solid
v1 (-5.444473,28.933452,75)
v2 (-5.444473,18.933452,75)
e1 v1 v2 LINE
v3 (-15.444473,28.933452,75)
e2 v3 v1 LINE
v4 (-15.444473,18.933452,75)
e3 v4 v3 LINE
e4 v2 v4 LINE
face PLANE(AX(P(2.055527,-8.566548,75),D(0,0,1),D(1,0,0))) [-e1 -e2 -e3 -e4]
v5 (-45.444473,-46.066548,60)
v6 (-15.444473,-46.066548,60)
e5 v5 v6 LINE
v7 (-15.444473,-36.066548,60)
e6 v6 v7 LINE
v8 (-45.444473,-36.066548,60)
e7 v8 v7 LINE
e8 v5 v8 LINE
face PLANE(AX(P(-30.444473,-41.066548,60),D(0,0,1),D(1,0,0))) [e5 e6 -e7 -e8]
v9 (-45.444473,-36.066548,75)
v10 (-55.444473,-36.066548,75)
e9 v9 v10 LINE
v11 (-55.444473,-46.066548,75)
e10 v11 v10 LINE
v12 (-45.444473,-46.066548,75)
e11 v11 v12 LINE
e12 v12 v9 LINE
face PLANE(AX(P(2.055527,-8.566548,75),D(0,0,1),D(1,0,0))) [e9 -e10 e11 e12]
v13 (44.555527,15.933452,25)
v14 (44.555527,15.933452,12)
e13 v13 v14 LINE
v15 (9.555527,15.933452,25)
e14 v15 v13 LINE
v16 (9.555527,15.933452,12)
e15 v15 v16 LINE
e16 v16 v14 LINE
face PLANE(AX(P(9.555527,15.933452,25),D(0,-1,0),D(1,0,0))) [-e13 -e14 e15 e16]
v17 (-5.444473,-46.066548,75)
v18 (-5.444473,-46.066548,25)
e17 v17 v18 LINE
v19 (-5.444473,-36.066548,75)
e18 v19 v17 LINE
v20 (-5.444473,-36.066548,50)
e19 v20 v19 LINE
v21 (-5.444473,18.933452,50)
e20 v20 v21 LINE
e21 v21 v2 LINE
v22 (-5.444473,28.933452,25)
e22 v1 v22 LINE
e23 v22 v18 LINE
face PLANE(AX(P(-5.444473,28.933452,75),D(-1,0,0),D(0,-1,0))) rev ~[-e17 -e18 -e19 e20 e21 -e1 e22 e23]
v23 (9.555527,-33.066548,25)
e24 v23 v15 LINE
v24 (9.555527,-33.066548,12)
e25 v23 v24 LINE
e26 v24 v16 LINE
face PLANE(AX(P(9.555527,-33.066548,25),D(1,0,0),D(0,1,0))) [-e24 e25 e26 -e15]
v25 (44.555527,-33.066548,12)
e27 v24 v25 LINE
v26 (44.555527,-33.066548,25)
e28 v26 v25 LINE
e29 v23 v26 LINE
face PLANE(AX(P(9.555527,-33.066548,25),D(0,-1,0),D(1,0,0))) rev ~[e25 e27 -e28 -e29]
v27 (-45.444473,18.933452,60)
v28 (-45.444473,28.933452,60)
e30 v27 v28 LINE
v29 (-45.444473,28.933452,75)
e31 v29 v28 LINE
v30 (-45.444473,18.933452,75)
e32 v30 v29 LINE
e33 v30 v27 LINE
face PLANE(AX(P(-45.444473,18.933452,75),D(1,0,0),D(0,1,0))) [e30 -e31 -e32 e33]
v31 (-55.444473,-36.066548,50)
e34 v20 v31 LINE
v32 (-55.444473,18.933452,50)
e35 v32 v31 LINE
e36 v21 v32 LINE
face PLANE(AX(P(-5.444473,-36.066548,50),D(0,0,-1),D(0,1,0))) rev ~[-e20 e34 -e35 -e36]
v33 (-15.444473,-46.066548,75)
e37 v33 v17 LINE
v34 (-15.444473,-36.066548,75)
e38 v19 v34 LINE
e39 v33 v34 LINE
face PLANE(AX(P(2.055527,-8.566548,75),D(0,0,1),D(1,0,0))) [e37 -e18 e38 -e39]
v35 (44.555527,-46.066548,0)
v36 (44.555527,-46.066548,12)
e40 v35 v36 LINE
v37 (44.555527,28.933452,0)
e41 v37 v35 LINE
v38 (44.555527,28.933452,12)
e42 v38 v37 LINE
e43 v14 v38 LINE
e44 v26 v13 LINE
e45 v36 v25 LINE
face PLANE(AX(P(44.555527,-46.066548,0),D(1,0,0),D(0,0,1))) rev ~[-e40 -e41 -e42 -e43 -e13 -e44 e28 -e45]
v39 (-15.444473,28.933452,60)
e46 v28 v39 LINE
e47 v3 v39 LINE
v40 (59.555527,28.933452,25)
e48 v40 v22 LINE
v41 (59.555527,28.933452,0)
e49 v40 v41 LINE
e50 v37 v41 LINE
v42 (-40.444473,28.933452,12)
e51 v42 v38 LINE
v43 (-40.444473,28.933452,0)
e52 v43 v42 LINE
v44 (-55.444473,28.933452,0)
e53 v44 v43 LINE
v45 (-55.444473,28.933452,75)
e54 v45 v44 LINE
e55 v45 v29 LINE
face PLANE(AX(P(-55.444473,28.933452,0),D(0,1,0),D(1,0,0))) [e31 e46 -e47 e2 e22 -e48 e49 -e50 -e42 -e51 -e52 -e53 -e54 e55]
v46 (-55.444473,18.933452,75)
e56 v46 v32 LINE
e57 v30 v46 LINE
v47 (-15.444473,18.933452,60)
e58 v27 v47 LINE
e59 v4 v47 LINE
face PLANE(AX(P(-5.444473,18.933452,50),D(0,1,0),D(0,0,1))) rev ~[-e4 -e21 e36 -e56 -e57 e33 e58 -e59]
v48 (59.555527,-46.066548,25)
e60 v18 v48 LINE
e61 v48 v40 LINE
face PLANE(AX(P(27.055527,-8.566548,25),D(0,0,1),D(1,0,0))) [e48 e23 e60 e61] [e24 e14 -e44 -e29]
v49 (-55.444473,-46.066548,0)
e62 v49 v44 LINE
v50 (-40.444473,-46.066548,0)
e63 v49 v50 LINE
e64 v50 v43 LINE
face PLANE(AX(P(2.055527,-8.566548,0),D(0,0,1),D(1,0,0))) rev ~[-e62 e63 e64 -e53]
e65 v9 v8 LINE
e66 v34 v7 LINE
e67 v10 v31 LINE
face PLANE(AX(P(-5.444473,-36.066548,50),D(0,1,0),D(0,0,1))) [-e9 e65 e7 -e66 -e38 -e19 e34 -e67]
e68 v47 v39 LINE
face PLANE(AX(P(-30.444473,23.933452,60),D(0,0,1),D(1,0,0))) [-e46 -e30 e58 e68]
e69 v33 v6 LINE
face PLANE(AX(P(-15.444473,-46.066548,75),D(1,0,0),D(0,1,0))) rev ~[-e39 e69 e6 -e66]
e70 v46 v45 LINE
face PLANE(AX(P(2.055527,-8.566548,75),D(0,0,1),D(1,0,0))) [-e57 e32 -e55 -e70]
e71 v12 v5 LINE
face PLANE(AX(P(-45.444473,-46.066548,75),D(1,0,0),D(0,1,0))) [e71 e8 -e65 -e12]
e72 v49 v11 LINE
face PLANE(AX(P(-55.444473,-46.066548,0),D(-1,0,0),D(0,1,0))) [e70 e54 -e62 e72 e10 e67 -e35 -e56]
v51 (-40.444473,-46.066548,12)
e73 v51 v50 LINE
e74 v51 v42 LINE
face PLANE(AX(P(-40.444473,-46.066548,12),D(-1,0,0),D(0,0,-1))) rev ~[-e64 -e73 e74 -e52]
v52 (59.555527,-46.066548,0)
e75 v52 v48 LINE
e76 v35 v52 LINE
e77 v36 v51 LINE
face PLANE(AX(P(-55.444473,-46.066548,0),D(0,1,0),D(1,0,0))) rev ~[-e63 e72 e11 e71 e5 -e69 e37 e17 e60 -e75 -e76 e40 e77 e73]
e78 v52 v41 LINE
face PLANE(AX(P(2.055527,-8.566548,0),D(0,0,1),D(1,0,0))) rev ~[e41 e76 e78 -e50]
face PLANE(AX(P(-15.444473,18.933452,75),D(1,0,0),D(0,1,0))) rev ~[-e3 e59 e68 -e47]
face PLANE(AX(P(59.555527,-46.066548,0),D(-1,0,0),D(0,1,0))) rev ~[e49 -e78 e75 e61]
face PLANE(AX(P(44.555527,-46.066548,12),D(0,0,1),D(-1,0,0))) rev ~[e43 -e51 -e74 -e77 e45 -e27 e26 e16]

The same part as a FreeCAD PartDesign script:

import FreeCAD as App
import Part
import Sketcher

V = App.Vector


def add_polygon(sketch, points):
    """Adds a closed chain of lines whose ends are joined by coincident constraints."""
    first, n = sketch.GeometryCount, len(points)
    for a, b in zip(points, points[1:] + points[:1]):
        sketch.addGeometry(Part.LineSegment(App.Vector(*a, 0), App.Vector(*b, 0)), False)
    for i in range(n):
        sketch.addConstraint(Sketcher.Constraint("Coincident", first + i, 2, first + (i + 1) % n, 1))

doc = App.newDocument("Part")
body = doc.addObject("PartDesign::Body", "Body")

sketch1 = doc.addObject("Sketcher::SketchObject", "Sketch")
body.addObject(sketch1)
sketch1.AttachmentSupport = (doc.XY_Plane, [""])
sketch1.MapMode = "FlatFace"
add_polygon(sketch1, [(-55, 29), (-55, -46), (60, -46), (60, 29)])
sketch1.addConstraint(Sketcher.Constraint("Vertical", 0))
sketch1.addConstraint(Sketcher.Constraint("Horizontal", 1))
sketch1.addConstraint(Sketcher.Constraint("Vertical", 2))
sketch1.addConstraint(Sketcher.Constraint("Horizontal", 3))
sketch1.addConstraint(Sketcher.Constraint("DistanceX", 1, 1, 1, 2, 115.0))
sketch1.addConstraint(Sketcher.Constraint("DistanceY", 0, 2, 0, 1, 75.0))
sketch1.addConstraint(Sketcher.Constraint("DistanceX", 0, 2, -1, 1, 55.444473))
sketch1.addConstraint(Sketcher.Constraint("DistanceY", 0, 2, -1, 1, 46.066548))
pad1 = doc.addObject("PartDesign::Pad", "Pad")
body.addObject(pad1)
pad1.Profile = sketch1
pad1.Length = 25

sketch2 = doc.addObject("Sketcher::SketchObject", "Sketch001")
body.addObject(sketch2)
sketch2.AttachmentSupport = (doc.XY_Plane, [""])
sketch2.MapMode = "FlatFace"
add_polygon(sketch2, [(-55, 29), (-55, -46), (60, -46), (60, 29)])
sketch2.addConstraint(Sketcher.Constraint("Vertical", 0))
sketch2.addConstraint(Sketcher.Constraint("Horizontal", 1))
sketch2.addConstraint(Sketcher.Constraint("Vertical", 2))
sketch2.addConstraint(Sketcher.Constraint("Horizontal", 3))
sketch2.addConstraint(Sketcher.Constraint("DistanceX", 1, 1, 1, 2, 115.0))
sketch2.addConstraint(Sketcher.Constraint("DistanceY", 0, 2, 0, 1, 75.0))
sketch2.addConstraint(Sketcher.Constraint("DistanceX", 0, 2, -1, 1, 55.444473))
sketch2.addConstraint(Sketcher.Constraint("DistanceY", 0, 2, -1, 1, 46.066548))
pad2 = doc.addObject("PartDesign::Pad", "Pad001")
body.addObject(pad2)
pad2.Profile = sketch2
pad2.Length = 75

sketch3 = doc.addObject("Sketcher::SketchObject", "Sketch002")
body.addObject(sketch3)
sketch3.AttachmentSupport = (doc.XZ_Plane, [""])
sketch3.MapMode = "FlatFace"
sketch3.AttachmentOffset = App.Placement(V(0, 0, 46.066548), App.Rotation())
add_polygon(sketch3, [(-40, 12), (-40, 0), (45, 0), (45, 12)])
sketch3.addConstraint(Sketcher.Constraint("Vertical", 0))
sketch3.addConstraint(Sketcher.Constraint("Horizontal", 1))
sketch3.addConstraint(Sketcher.Constraint("Vertical", 2))
sketch3.addConstraint(Sketcher.Constraint("Horizontal", 3))
sketch3.addConstraint(Sketcher.Constraint("PointOnObject", 0, 2, -1))
sketch3.addConstraint(Sketcher.Constraint("DistanceX", 1, 1, 1, 2, 85.0))
sketch3.addConstraint(Sketcher.Constraint("DistanceY", 0, 2, 0, 1, 12.0))
sketch3.addConstraint(Sketcher.Constraint("DistanceX", 0, 2, -1, 1, 40.444473))
pocket1 = doc.addObject("PartDesign::Pocket", "Pocket")
body.addObject(pocket1)
pocket1.Profile = sketch3
pocket1.Type = "ThroughAll"

sketch4 = doc.addObject("Sketcher::SketchObject", "Sketch003")
body.addObject(sketch4)
sketch4.AttachmentSupport = (doc.XY_Plane, [""])
sketch4.MapMode = "FlatFace"
sketch4.AttachmentOffset = App.Placement(V(0, 0, 75), App.Rotation())
add_polygon(sketch4, [(60, 29), (-5, 29), (-5, -46), (60, -46)])
sketch4.addConstraint(Sketcher.Constraint("Horizontal", 0))
sketch4.addConstraint(Sketcher.Constraint("Vertical", 1))
sketch4.addConstraint(Sketcher.Constraint("Horizontal", 2))
sketch4.addConstraint(Sketcher.Constraint("Vertical", 3))
sketch4.addConstraint(Sketcher.Constraint("DistanceX", 0, 2, 0, 1, 65.0))
sketch4.addConstraint(Sketcher.Constraint("DistanceY", 1, 2, 1, 1, 75.0))
sketch4.addConstraint(Sketcher.Constraint("DistanceX", 0, 2, -1, 1, 5.444473))
sketch4.addConstraint(Sketcher.Constraint("DistanceY", -1, 1, 0, 2, 28.933452))
pocket2 = doc.addObject("PartDesign::Pocket", "Pocket001")
body.addObject(pocket2)
pocket2.Profile = sketch4
pocket2.Length = 50

sketch5 = doc.addObject("Sketcher::SketchObject", "Sketch004")
body.addObject(sketch5)
sketch5.AttachmentSupport = (doc.YZ_Plane, [""])
sketch5.MapMode = "FlatFace"
sketch5.AttachmentOffset = App.Placement(V(0, 0, -5.444473), App.Rotation())
add_polygon(sketch5, [(-36, 75), (-36, 50), (19, 50), (19, 75)])
sketch5.addConstraint(Sketcher.Constraint("Vertical", 0))
sketch5.addConstraint(Sketcher.Constraint("Horizontal", 1))
sketch5.addConstraint(Sketcher.Constraint("Vertical", 2))
sketch5.addConstraint(Sketcher.Constraint("Horizontal", 3))
sketch5.addConstraint(Sketcher.Constraint("DistanceX", 1, 1, 1, 2, 55.0))
sketch5.addConstraint(Sketcher.Constraint("DistanceY", 0, 2, 0, 1, 25.0))
sketch5.addConstraint(Sketcher.Constraint("DistanceY", -1, 1, 0, 2, 50.0))
sketch5.addConstraint(Sketcher.Constraint("DistanceX", 0, 2, -1, 1, 36.066548))
pocket3 = doc.addObject("PartDesign::Pocket", "Pocket002")
body.addObject(pocket3)
pocket3.Profile = sketch5
pocket3.Type = "ThroughAll"

sketch6 = doc.addObject("Sketcher::SketchObject", "Sketch005")
body.addObject(sketch6)
sketch6.AttachmentSupport = (doc.XY_Plane, [""])
sketch6.MapMode = "FlatFace"
sketch6.AttachmentOffset = App.Placement(V(0, 0, 25), App.Rotation())
add_polygon(sketch6, [(10, 16), (10, -33), (45, -33), (45, 16)])
sketch6.addConstraint(Sketcher.Constraint("Vertical", 0))
sketch6.addConstraint(Sketcher.Constraint("Horizontal", 1))
sketch6.addConstraint(Sketcher.Constraint("Vertical", 2))
sketch6.addConstraint(Sketcher.Constraint("Horizontal", 3))
sketch6.addConstraint(Sketcher.Constraint("DistanceX", 1, 1, 1, 2, 35.0))
sketch6.addConstraint(Sketcher.Constraint("DistanceY", 0, 2, 0, 1, 49.0))
sketch6.addConstraint(Sketcher.Constraint("DistanceX", -1, 1, 0, 2, 9.555527))
sketch6.addConstraint(Sketcher.Constraint("DistanceY", 0, 2, -1, 1, 33.066548))
pocket4 = doc.addObject("PartDesign::Pocket", "Pocket003")
body.addObject(pocket4)
pocket4.Profile = sketch6
pocket4.Type = "ThroughAll"

sketch7 = doc.addObject("Sketcher::SketchObject", "Sketch006")
body.addObject(sketch7)
sketch7.AttachmentSupport = (doc.XY_Plane, [""])
sketch7.MapMode = "FlatFace"
sketch7.AttachmentOffset = App.Placement(V(0, 0, 75), App.Rotation())
add_polygon(sketch7, [(-45, 29), (-45, 19), (-15, 19), (-15, 29)])
sketch7.addConstraint(Sketcher.Constraint("Vertical", 0))
sketch7.addConstraint(Sketcher.Constraint("Horizontal", 1))
sketch7.addConstraint(Sketcher.Constraint("Vertical", 2))
sketch7.addConstraint(Sketcher.Constraint("Horizontal", 3))
sketch7.addConstraint(Sketcher.Constraint("DistanceX", 1, 1, 1, 2, 30.0))
sketch7.addConstraint(Sketcher.Constraint("DistanceY", 0, 2, 0, 1, 10.0))
sketch7.addConstraint(Sketcher.Constraint("DistanceX", 0, 2, -1, 1, 45.444473))
sketch7.addConstraint(Sketcher.Constraint("DistanceY", -1, 1, 0, 2, 18.933452))
pocket5 = doc.addObject("PartDesign::Pocket", "Pocket004")
body.addObject(pocket5)
pocket5.Profile = sketch7
pocket5.Length = 15

sketch8 = doc.addObject("Sketcher::SketchObject", "Sketch007")
body.addObject(sketch8)
sketch8.AttachmentSupport = (doc.XY_Plane, [""])
sketch8.MapMode = "FlatFace"
sketch8.AttachmentOffset = App.Placement(V(0, 0, 75), App.Rotation())
add_polygon(sketch8, [(-45, -36), (-45, -46), (-15, -46), (-15, -36)])
sketch8.addConstraint(Sketcher.Constraint("Vertical", 0))
sketch8.addConstraint(Sketcher.Constraint("Horizontal", 1))
sketch8.addConstraint(Sketcher.Constraint("Vertical", 2))
sketch8.addConstraint(Sketcher.Constraint("Horizontal", 3))
sketch8.addConstraint(Sketcher.Constraint("DistanceX", 1, 1, 1, 2, 30.0))
sketch8.addConstraint(Sketcher.Constraint("DistanceY", 0, 2, 0, 1, 10.0))
sketch8.addConstraint(Sketcher.Constraint("DistanceX", 0, 2, -1, 1, 45.444473))
sketch8.addConstraint(Sketcher.Constraint("DistanceY", 0, 2, -1, 1, 46.066548))
pocket6 = doc.addObject("PartDesign::Pocket", "Pocket005")
body.addObject(pocket6)
pocket6.Profile = sketch8
pocket6.Length = 15

doc.recompute()
